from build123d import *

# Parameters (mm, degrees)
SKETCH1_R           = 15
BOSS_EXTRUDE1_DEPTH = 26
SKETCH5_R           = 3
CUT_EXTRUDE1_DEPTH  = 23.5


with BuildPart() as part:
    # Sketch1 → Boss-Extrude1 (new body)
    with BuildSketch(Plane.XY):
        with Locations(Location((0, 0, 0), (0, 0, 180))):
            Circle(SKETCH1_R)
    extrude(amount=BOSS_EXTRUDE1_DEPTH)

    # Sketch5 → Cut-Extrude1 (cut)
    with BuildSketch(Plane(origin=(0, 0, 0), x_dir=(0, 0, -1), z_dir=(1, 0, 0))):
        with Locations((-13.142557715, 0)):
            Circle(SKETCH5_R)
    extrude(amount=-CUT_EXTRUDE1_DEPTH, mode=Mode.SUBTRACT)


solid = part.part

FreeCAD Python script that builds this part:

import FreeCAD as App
import Part
import Sketcher
from FreeCAD import Vector

doc = App.newDocument("Part")
body = doc.addObject("PartDesign::Body", "Body")

# Sketch on XY plane
sketch1 = body.newObject("Sketcher::SketchObject", "Sketch")
sketch1.AttachmentSupport = (doc.getObject("XY_Plane"), [""])
sketch1.MapMode = "FlatFace"
sketch1.addGeometry(Part.Circle(Vector(0, 0, 0), Vector(0, 0, 1), 15), False)
sketch1.addConstraint(Sketcher.Constraint("Coincident", 0, 3, -1, 1))
sketch1.addConstraint(Sketcher.Constraint("Diameter", 0, 30.0))
pad1 = body.newObject("PartDesign::Pad", "Pad")
pad1.Profile = sketch1
pad1.Length = 26

# Sketch on YZ plane
sketch2 = body.newObject("Sketcher::SketchObject", "Sketch001")
sketch2.AttachmentSupport = (doc.getObject("YZ_Plane"), [""])
sketch2.MapMode = "FlatFace"
sketch2.addGeometry(Part.Circle(Vector(0, 13.1, 0), Vector(0, 0, 1), 3), False)
sketch2.addConstraint(Sketcher.Constraint("PointOnObject", 0, 3, -2))
sketch2.addConstraint(Sketcher.Constraint("Diameter", 0, 6.0))
sketch2.addConstraint(Sketcher.Constraint("DistanceY", -1, 1, 0, 3, 13.142558))
pocket1 = body.newObject("PartDesign::Pocket", "Pocket")
pocket1.Profile = sketch2
pocket1.Length = 23.5

doc.recompute()
